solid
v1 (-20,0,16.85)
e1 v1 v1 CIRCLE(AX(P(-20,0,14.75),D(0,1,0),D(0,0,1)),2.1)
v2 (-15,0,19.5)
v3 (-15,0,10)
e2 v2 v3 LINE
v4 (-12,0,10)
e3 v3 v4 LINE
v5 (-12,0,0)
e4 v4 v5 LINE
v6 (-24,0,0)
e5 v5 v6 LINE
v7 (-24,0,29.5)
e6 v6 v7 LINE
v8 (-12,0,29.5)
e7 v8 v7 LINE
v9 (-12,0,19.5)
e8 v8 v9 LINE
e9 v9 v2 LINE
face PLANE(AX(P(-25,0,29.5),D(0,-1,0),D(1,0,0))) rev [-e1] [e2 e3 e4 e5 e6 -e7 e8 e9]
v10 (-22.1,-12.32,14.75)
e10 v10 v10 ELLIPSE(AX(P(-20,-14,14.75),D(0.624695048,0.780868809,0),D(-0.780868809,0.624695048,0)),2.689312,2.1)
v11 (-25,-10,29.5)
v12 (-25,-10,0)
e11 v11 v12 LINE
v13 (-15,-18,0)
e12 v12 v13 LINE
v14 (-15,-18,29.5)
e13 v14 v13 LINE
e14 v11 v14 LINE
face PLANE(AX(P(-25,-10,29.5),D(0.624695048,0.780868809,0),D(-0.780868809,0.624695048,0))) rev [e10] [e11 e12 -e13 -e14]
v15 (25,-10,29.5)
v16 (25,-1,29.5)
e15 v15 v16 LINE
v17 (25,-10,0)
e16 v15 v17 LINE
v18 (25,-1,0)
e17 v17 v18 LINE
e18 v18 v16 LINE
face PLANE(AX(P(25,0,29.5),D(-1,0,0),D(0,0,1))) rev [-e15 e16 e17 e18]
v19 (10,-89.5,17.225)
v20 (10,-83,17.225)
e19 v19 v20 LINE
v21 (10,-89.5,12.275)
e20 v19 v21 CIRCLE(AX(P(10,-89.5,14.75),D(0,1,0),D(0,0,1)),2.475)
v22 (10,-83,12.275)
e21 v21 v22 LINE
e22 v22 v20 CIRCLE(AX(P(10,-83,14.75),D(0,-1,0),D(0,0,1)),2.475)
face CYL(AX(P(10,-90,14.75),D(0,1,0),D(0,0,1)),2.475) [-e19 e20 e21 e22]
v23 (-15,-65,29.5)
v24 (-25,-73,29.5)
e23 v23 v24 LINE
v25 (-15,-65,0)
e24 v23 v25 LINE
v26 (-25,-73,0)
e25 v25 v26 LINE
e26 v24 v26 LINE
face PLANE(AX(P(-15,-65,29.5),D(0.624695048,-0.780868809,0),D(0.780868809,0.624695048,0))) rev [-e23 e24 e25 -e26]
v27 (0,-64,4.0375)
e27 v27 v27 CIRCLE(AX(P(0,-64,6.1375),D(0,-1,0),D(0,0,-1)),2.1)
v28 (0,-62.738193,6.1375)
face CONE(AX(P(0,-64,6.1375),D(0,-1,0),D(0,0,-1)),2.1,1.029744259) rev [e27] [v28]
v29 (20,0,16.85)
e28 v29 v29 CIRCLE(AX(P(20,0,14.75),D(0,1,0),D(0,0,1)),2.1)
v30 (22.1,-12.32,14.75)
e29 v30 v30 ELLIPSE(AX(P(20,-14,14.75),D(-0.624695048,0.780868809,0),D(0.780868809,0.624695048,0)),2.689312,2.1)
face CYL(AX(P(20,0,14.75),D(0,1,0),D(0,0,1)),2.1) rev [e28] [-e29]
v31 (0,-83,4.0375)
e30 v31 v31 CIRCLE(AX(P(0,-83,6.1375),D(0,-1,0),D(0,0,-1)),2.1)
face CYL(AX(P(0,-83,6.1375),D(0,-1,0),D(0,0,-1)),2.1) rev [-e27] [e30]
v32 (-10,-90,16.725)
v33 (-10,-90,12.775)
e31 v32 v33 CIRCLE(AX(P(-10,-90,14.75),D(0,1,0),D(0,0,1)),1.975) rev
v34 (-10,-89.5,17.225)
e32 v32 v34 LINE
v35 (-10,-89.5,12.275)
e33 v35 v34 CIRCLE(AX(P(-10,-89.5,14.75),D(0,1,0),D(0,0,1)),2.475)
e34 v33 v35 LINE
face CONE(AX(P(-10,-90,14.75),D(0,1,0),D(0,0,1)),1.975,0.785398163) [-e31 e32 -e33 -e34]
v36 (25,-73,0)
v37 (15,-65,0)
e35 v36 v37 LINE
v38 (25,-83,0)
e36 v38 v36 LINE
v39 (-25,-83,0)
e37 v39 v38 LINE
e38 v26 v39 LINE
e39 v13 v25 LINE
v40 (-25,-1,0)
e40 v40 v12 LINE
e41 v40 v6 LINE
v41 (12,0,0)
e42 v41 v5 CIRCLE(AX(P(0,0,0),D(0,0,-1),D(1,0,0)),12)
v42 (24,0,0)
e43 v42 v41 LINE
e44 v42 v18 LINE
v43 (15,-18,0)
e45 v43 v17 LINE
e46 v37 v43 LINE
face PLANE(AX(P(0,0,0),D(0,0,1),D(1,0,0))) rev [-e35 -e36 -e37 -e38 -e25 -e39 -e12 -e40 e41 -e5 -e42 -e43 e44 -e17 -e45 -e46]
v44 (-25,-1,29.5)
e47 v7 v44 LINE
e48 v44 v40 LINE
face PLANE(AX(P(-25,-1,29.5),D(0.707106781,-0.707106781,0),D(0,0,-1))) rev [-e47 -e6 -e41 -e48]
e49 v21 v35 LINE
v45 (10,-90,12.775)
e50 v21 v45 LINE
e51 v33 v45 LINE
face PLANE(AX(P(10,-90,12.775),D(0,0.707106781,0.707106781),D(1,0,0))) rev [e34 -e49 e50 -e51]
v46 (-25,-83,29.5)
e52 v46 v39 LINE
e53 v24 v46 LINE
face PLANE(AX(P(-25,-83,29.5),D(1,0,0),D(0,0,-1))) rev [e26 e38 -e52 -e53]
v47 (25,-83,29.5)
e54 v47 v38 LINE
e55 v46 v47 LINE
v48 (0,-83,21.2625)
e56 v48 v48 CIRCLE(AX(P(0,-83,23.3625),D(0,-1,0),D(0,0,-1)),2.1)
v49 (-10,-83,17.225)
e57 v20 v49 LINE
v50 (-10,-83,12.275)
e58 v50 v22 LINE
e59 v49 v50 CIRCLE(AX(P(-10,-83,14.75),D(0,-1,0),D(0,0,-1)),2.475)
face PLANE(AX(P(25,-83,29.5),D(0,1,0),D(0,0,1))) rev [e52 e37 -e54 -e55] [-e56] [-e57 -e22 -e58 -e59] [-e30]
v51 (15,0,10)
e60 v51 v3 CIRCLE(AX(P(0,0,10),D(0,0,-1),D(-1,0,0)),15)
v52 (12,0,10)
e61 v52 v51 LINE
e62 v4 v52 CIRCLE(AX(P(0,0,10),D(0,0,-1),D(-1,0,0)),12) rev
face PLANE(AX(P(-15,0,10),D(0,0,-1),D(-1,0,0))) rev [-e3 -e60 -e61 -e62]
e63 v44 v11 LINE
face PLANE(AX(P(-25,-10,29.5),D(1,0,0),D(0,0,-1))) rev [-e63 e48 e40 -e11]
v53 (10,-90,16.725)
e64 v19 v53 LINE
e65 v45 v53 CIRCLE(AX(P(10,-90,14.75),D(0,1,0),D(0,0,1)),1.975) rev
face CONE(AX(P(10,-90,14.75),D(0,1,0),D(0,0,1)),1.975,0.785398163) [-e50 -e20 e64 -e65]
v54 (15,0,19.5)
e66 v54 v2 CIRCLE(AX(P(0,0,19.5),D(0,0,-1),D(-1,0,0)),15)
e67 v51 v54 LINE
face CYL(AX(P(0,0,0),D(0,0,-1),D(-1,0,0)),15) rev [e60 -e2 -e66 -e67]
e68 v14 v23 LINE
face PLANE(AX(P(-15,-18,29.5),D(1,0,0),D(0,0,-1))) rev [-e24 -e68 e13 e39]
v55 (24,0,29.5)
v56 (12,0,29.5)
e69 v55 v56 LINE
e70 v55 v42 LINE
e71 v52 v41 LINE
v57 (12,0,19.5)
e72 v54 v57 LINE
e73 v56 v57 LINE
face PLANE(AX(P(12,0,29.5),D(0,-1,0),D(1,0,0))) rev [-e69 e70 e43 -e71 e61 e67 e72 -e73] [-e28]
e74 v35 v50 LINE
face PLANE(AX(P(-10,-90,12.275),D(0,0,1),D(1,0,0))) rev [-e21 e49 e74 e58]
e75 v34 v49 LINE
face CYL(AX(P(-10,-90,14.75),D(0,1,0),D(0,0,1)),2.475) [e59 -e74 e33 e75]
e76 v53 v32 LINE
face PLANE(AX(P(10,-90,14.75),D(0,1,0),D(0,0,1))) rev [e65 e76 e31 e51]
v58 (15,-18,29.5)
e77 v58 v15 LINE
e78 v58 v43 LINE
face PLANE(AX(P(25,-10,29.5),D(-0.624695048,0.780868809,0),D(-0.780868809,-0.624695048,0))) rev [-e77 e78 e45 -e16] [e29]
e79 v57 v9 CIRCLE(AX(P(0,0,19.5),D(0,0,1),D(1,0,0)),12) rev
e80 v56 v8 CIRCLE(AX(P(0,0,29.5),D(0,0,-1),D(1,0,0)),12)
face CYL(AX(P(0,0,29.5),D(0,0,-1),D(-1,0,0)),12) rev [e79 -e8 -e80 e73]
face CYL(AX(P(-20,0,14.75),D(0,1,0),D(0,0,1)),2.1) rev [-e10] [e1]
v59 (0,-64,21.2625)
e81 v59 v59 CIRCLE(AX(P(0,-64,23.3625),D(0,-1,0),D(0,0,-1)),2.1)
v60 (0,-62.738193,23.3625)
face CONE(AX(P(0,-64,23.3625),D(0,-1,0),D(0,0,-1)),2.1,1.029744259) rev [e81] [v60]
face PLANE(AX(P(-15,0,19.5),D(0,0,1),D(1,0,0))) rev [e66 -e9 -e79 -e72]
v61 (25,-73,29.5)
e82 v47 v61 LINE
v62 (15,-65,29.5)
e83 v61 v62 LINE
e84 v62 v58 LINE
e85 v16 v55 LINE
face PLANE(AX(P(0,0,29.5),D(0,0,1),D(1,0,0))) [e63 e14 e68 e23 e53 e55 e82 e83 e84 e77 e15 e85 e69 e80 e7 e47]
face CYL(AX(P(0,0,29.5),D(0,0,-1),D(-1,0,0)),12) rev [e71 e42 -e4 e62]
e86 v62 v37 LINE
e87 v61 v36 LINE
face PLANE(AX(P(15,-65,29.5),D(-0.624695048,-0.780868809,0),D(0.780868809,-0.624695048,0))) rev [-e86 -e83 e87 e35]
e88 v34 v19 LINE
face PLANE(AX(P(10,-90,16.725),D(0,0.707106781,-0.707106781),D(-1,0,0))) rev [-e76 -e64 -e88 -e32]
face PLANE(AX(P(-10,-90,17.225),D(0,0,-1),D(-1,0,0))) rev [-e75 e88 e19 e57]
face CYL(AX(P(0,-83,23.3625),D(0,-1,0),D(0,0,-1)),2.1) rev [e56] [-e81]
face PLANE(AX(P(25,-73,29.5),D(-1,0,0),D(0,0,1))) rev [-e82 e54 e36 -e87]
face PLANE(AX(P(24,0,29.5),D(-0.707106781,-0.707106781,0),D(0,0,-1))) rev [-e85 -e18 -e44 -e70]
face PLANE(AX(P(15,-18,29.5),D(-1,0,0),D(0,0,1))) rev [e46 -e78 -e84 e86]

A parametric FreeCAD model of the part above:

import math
import FreeCAD as App
import Part
import Sketcher


def edges_at(feature, points):
    """Names of the edges that pass closest to the given points."""
    edges = feature.Shape.Edges
    near = lambda p: min(range(len(edges)), key=lambda i: edges[i].distToShape(Part.Vertex(*p))[0])
    return sorted({f"Edge{near(p) + 1}" for p in points})

doc = App.newDocument("Part")
params = doc.addObject("Spreadsheet::Sheet", "Params")
for row, (alias, value) in enumerate([
    ("sketch1_radius", "12 mm"),
    ("sketch1_width", "13 mm"),
    ("sketch1_height", "10 mm"),
    ("sketch1_height2", "47 mm"),
    ("pad1_length", "29.5 mm"),
    ("sketch2_width", "20 mm"),
    ("pad2_length", "7 mm"),
    ("chamfer_size", "0.5 mm"),
    ("sketch3_diameter", "4.2 mm"),
    ("hole_diameter", "4.2 mm"),
    ("hole_depth", "19 mm"),
    ("sketch4_height", "9.5 mm"),
    ("groove_angle", "360 deg"),
    ("sketch5_diameter", "4.2 mm"),
    ("sketch6_diameter", "4.2 mm"),
    ("chamfer2_size", "1 mm"),
], start=1):
    params.set(f"A{row}", alias)
    params.set(f"B{row}", "=" + value)
    params.setAlias(f"B{row}", alias)

body = doc.addObject("PartDesign::Body", "Body")

# Sketch on XY plane
sketch1 = body.newObject("Sketcher::SketchObject", "Sketch")
sketch1.AttachmentSupport = (doc.getObject("XY_Plane"), [""])
sketch1.MapMode = "FlatFace"
sketch1.addGeometry([
    Part.LineSegment(App.Vector(25, 0, 0), App.Vector(12, 0, 0)),  # 0
    Part.ArcOfCircle(Part.Circle(App.Vector(0, 0, 0), App.Vector(0, 0, 1), 12), math.radians(180), math.radians(360)),  # 1
    Part.LineSegment(App.Vector(-12, 0, 0), App.Vector(-25, 0, 0)),  # 2
    Part.LineSegment(App.Vector(-25, 0, 0), App.Vector(-25, -10, 0)),  # 3
    Part.LineSegment(App.Vector(-25, -10, 0), App.Vector(-15, -18, 0)),  # 4
    Part.LineSegment(App.Vector(-15, -18, 0), App.Vector(-15, -65, 0)),  # 5
    Part.LineSegment(App.Vector(-15, -65, 0), App.Vector(-25, -73, 0)),  # 6
    Part.LineSegment(App.Vector(-25, -73, 0), App.Vector(-25, -83, 0)),  # 7
    Part.LineSegment(App.Vector(-25, -83, 0), App.Vector(25, -83, 0)),  # 8
    Part.LineSegment(App.Vector(25, -83, 0), App.Vector(25, -73, 0)),  # 9
    Part.LineSegment(App.Vector(25, -73, 0), App.Vector(15, -65, 0)),  # 10
    Part.LineSegment(App.Vector(15, -65, 0), App.Vector(15, -18, 0)),  # 11
    Part.LineSegment(App.Vector(15, -18, 0), App.Vector(25, -10, 0)),  # 12
    Part.LineSegment(App.Vector(25, -10, 0), App.Vector(25, 0, 0)),  # 13
], False)
sketch1.addConstraint([
    Sketcher.Constraint("Coincident", 0, 2, 1, 2),
    Sketcher.Constraint("Coincident", 1, 1, 2, 1),
    Sketcher.Constraint("Coincident", 2, 2, 3, 1),
    Sketcher.Constraint("Coincident", 3, 2, 4, 1),
    Sketcher.Constraint("Coincident", 4, 2, 5, 1),
    Sketcher.Constraint("Coincident", 5, 2, 6, 1),
    Sketcher.Constraint("Coincident", 6, 2, 7, 1),
    Sketcher.Constraint("Coincident", 7, 2, 8, 1),
    Sketcher.Constraint("Coincident", 8, 2, 9, 1),
    Sketcher.Constraint("Coincident", 9, 2, 10, 1),
    Sketcher.Constraint("Coincident", 10, 2, 11, 1),
    Sketcher.Constraint("Coincident", 11, 2, 12, 1),
    Sketcher.Constraint("Coincident", 12, 2, 13, 1),
    Sketcher.Constraint("Coincident", 13, 2, 0, 1),
    Sketcher.Constraint("Horizontal", 0),
    Sketcher.Constraint("Horizontal", 2),
    Sketcher.Constraint("Vertical", 3),
    Sketcher.Constraint("Vertical", 5),
    Sketcher.Constraint("Vertical", 7),
    Sketcher.Constraint("Horizontal", 8),
    Sketcher.Constraint("Vertical", 9),
    Sketcher.Constraint("Vertical", 11),
    Sketcher.Constraint("Vertical", 13),
    Sketcher.Constraint("Coincident", 1, 3, -1, 1),
    Sketcher.Constraint("Symmetric", 2, 2, 13, 2, -1, 1),
    Sketcher.Constraint("Symmetric", 6, 2, 9, 2, -2),
    Sketcher.Constraint("Symmetric", 5, 2, 10, 2, -2),
    Sketcher.Constraint("PointOnObject", 0, 2, -1),
    Sketcher.Constraint("Parallel", 4, 10),
    Sketcher.Constraint("Parallel", 6, 12),
    Sketcher.Constraint("Horizontal", 4, 2, 11, 2),
    Sketcher.Constraint("Vertical", 3, 2, 6, 2),
    Sketcher.Constraint("Equal", 3, 7),
    Sketcher.Constraint("Radius", 1, 12.0),
    Sketcher.Constraint("DistanceX", 0, 2, 0, 1, 13.0),
    Sketcher.Constraint("DistanceY", 3, 2, 3, 1, 10.0),
    Sketcher.Constraint("DistanceY", 5, 2, 5, 1, 47.0),
    Sketcher.Constraint("DistanceX", 4, 2, -1, 1, 15.0),
    Sketcher.Constraint("DistanceY", 4, 2, -1, 1, 18.0),
])
sketch1.setExpression("Constraints[33]", "Params.sketch1_radius")
sketch1.setExpression("Constraints[34]", "Params.sketch1_width")
sketch1.setExpression("Constraints[35]", "Params.sketch1_height")
sketch1.setExpression("Constraints[36]", "Params.sketch1_height2")
pad1 = body.newObject("PartDesign::Pad", "Pad")
pad1.Profile = sketch1
pad1.setExpression("Length", "Params.pad1_length")

# Sketch on XZ plane
sketch2 = body.newObject("Sketcher::SketchObject", "Sketch001")
sketch2.AttachmentSupport = (doc.getObject("XZ_Plane"), [""])
sketch2.MapMode = "FlatFace"
sketch2.AttachmentOffset = App.Placement(App.Vector(0, 0, 83), App.Rotation())
sketch2.addGeometry([
    Part.LineSegment(App.Vector(-10, 12.3, 0), App.Vector(10, 12.3, 0)),
    Part.ArcOfCircle(Part.Circle(App.Vector(10, 14.8, 0), App.Vector(0, 0, 1), 2.5), math.radians(-90), math.radians(90)),
    Part.LineSegment(App.Vector(10, 17.2, 0), App.Vector(-10, 17.2, 0)),
    Part.ArcOfCircle(Part.Circle(App.Vector(-10, 14.8, 0), App.Vector(0, 0, 1), 2.5), math.radians(90), math.radians(270)),
], False)
sketch2.addConstraint([
    Sketcher.Constraint("Tangent", 0, 2, 1, 1),
    Sketcher.Constraint("Tangent", 1, 2, 2, 1),
    Sketcher.Constraint("Tangent", 2, 2, 3, 1),
    Sketcher.Constraint("Tangent", 3, 2, 0, 1),
    Sketcher.Constraint("Horizontal", 0),
    Sketcher.Constraint("Horizontal", 2),
    Sketcher.Constraint("DistanceX", 0, 1, 0, 2, 20.0),
    Sketcher.Constraint("DistanceX", -1, 1, 1, 3, 10.0),
    Sketcher.Constraint("Radius", 1, 2.475),
    Sketcher.Constraint("DistanceY", -1, 1, 1, 3, 14.75),
])
sketch2.setExpression("Constraints[6]", "Params.sketch2_width")
pad2 = body.newObject("PartDesign::Pad", "Pad001")
pad2.Profile = sketch2
pad2.setExpression("Length", "Params.pad2_length")
doc.recompute()

chamfer = body.newObject("PartDesign::Chamfer", "Chamfer")
chamfer.Base = (pad2, edges_at(pad2, [
    (12.475, -90, 14.75),
    (0, -90, 17.225),
    (-12.475, -90, 14.75),
    (0, -90, 12.275),
]))
chamfer.setExpression("Size", "Params.chamfer_size")

# Sketch on XZ plane
sketch3 = body.newObject("Sketcher::SketchObject", "Sketch002")
sketch3.AttachmentSupport = (doc.getObject("XZ_Plane"), [""])
sketch3.MapMode = "FlatFace"
sketch3.AttachmentOffset = App.Placement(App.Vector(0, 0, 83), App.Rotation())
sketch3.addGeometry([
    Part.Circle(App.Vector(0, 23.4, 0), App.Vector(0, 0, 1), 2.1),
    Part.Circle(App.Vector(0, 6.1, 0), App.Vector(0, 0, 1), 2.1),
], False)
sketch3.addConstraint([
    Sketcher.Constraint("Equal", 0, 1),
    Sketcher.Constraint("PointOnObject", 0, 3, -2),
    Sketcher.Constraint("PointOnObject", 1, 3, -2),
    Sketcher.Constraint("Diameter", 0, 4.2),
    Sketcher.Constraint("DistanceY", 1, 3, 0, 3, 17.225),
    Sketcher.Constraint("DistanceY", -1, 1, 0, 3, 23.3625),
])
sketch3.setExpression("Constraints[3]", "Params.sketch3_diameter")
doc.recompute()
hole = body.newObject("PartDesign::Hole", "Hole")
hole.Profile = sketch3
hole.ThreadType = "None"
hole.setExpression("Diameter", "Params.hole_diameter")
hole.DepthType = "Dimension"
hole.setExpression("Depth", "Params.hole_depth")
hole.DrillPoint = "Angled"
hole.DrillPointAngle = 118

# Sketch on XZ plane
sketch4 = body.newObject("Sketcher::SketchObject", "Sketch003")
sketch4.AttachmentSupport = (doc.getObject("XZ_Plane"), [""])
sketch4.MapMode = "FlatFace"
sketch4.addGeometry([
    Part.LineSegment(App.Vector(-15, 10, 0), App.Vector(-15, 20, 0)),
    Part.LineSegment(App.Vector(-15, 20, 0), App.Vector(-6, 20, 0)),
    Part.LineSegment(App.Vector(-6, 20, 0), App.Vector(-6, 10, 0)),
    Part.LineSegment(App.Vector(-6, 10, 0), App.Vector(-15, 10, 0)),
], False)
sketch4.addConstraint([
    Sketcher.Constraint("Coincident", 0, 2, 1, 1),
    Sketcher.Constraint("Coincident", 1, 2, 2, 1),
    Sketcher.Constraint("Coincident", 2, 2, 3, 1),
    Sketcher.Constraint("Coincident", 3, 2, 0, 1),
    Sketcher.Constraint("Vertical", 0),
    Sketcher.Constraint("Horizontal", 1),
    Sketcher.Constraint("Vertical", 2),
    Sketcher.Constraint("Horizontal", 3),
    Sketcher.Constraint("DistanceY", 0, 1, 0, 2, 9.5),
    Sketcher.Constraint("DistanceX", 0, 2, -1, 1, 15.0),
    Sketcher.Constraint("DistanceY", -1, 1, 2, 2, 10.0),
    Sketcher.Constraint("DistanceX", 1, 1, 1, 2, 8.675232),
])
sketch4.setExpression("Constraints[8]", "Params.sketch4_height")
groove = body.newObject("PartDesign::Groove", "Groove")
groove.Profile = sketch4
groove.ReferenceAxis = (sketch4, ["V_Axis"])
groove.setExpression("Angle", "Params.groove_angle")

# Sketch on XZ plane
sketch5 = body.newObject("Sketcher::SketchObject", "Sketch004")
sketch5.AttachmentSupport = (doc.getObject("XZ_Plane"), [""])
sketch5.MapMode = "FlatFace"
sketch5.addGeometry(Part.Circle(App.Vector(-20, 14.8, 0), App.Vector(0, 0, 1), 2.1), False)
sketch5.addConstraint([
    Sketcher.Constraint("Diameter", 0, 4.2),
    Sketcher.Constraint("DistanceX", 0, 3, -1, 1, 20.0),
    Sketcher.Constraint("DistanceY", -1, 1, 0, 3, 14.75),
])
sketch5.setExpression("Constraints[0]", "Params.sketch5_diameter")
pocket1 = body.newObject("PartDesign::Pocket", "Pocket")
pocket1.Profile = sketch5
pocket1.Type = "UpToFirst"
pocket1.Reversed = True

# Sketch on XZ plane
sketch6 = body.newObject("Sketcher::SketchObject", "Sketch005")
sketch6.AttachmentSupport = (doc.getObject("XZ_Plane"), [""])
sketch6.MapMode = "FlatFace"
sketch6.addGeometry(Part.Circle(App.Vector(20, 14.8, 0), App.Vector(0, 0, 1), 2.1), False)
sketch6.addConstraint([
    Sketcher.Constraint("Diameter", 0, 4.2),
    Sketcher.Constraint("DistanceX", -1, 1, 0, 3, 20.0),
    Sketcher.Constraint("DistanceY", -1, 1, 0, 3, 14.75),
])
sketch6.setExpression("Constraints[0]", "Params.sketch6_diameter")
pocket2 = body.newObject("PartDesign::Pocket", "Pocket001")
pocket2.Profile = sketch6
pocket2.Type = "UpToFirst"
pocket2.Reversed = True
doc.recompute()

chamfer2 = body.newObject("PartDesign::Chamfer", "Chamfer001")
chamfer2.Base = (pocket2, edges_at(pocket2, [(-25, 0, 14.75), (25, 0, 14.75)]))
chamfer2.setExpression("Size", "Params.chamfer2_size")

doc.recompute()
